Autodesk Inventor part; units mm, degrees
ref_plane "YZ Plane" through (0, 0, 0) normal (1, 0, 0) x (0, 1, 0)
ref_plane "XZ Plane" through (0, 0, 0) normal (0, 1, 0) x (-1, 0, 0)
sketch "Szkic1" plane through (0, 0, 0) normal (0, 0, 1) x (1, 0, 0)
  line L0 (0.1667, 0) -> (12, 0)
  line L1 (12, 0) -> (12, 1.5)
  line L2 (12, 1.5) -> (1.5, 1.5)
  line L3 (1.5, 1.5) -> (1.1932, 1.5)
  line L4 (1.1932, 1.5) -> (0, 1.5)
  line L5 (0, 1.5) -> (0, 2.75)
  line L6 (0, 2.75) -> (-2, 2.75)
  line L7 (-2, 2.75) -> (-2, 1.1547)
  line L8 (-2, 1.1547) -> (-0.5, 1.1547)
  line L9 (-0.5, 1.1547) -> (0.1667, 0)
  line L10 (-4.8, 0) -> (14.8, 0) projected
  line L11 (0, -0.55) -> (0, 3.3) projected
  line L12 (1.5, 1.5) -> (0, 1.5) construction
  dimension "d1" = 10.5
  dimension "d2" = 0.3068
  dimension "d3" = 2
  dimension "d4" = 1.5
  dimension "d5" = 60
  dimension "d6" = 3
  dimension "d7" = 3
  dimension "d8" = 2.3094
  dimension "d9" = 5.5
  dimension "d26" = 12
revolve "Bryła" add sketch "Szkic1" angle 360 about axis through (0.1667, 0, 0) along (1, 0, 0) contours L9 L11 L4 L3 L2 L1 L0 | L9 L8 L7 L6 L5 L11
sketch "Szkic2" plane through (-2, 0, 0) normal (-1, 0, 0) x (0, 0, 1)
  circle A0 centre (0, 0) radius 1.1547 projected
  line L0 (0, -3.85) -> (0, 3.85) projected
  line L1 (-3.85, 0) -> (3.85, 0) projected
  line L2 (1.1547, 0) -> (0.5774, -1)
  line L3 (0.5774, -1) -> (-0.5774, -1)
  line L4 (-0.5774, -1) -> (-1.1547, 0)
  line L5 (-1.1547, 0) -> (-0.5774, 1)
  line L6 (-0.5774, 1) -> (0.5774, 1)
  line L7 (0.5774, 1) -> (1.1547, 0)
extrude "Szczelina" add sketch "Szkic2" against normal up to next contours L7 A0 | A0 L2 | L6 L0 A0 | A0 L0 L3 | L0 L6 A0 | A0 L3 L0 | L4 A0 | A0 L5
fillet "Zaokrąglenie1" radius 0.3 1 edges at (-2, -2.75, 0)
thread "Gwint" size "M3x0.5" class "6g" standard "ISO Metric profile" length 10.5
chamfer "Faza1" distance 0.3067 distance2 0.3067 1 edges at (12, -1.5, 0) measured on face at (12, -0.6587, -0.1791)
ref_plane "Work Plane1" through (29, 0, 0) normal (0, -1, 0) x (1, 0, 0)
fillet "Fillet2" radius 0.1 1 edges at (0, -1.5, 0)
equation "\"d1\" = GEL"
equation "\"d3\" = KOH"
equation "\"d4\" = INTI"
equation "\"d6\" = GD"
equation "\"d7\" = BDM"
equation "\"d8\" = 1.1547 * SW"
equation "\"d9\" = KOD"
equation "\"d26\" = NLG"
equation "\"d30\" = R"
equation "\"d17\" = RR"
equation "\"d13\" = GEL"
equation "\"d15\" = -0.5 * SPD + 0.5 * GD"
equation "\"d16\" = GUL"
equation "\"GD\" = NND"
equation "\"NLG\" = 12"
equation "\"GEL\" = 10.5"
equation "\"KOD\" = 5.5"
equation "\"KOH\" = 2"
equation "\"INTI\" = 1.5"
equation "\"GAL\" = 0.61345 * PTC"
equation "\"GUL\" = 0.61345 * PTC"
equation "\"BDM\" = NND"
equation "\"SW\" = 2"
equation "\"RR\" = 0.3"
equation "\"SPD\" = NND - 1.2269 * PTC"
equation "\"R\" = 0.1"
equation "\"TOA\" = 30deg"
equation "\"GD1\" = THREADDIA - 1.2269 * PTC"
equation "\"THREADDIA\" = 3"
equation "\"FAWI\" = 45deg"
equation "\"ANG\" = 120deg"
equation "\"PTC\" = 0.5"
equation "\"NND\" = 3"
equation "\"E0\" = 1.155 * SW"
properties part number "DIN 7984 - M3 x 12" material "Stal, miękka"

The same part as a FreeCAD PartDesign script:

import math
import FreeCAD as App
import Part
import Sketcher

V = App.Vector


def edges_at(feature, points):
    """Names of the edges that pass closest to the given points."""
    edges = feature.Shape.Edges
    near = lambda p: min(range(len(edges)), key=lambda i: edges[i].distToShape(Part.Vertex(*p))[0])
    return sorted({f"Edge{near(p) + 1}" for p in points})


def add_polygon(sketch, points):
    """Adds a closed chain of lines whose ends are joined by coincident constraints."""
    first, n = sketch.GeometryCount, len(points)
    for a, b in zip(points, points[1:] + points[:1]):
        sketch.addGeometry(Part.LineSegment(App.Vector(*a, 0), App.Vector(*b, 0)), False)
    for i in range(n):
        sketch.addConstraint(Sketcher.Constraint("Coincident", first + i, 2, first + (i + 1) % n, 1))

doc = App.newDocument("Part")
body = doc.addObject("PartDesign::Body", "Body")

sketch1 = body.newObject("Sketcher::SketchObject", "Sketch")
sketch1.AttachmentSupport = (doc.getObject("XY_Plane"), [""])
sketch1.MapMode = "FlatFace"
add_polygon(sketch1, [(0.2, 0), (12, 0), (12, 1.5), (0, 1.5), (0, 2.8), (-2, 2.8), (-2, 1.2), (-0.5, 1.2)])
sketch1.addConstraint(Sketcher.Constraint("Horizontal", 0))
sketch1.addConstraint(Sketcher.Constraint("Vertical", 1))
sketch1.addConstraint(Sketcher.Constraint("Horizontal", 2))
sketch1.addConstraint(Sketcher.Constraint("Vertical", 3))
sketch1.addConstraint(Sketcher.Constraint("Horizontal", 4))
sketch1.addConstraint(Sketcher.Constraint("Vertical", 5))
sketch1.addConstraint(Sketcher.Constraint("Horizontal", 6))
sketch1.addConstraint(Sketcher.Constraint("PointOnObject", 0, 2, -1))
sketch1.addConstraint(Sketcher.Constraint("PointOnObject", 2, 2, -2))
sketch1.addConstraint(Sketcher.Constraint("Equal", 6, 1))
sketch1.addConstraint(Sketcher.Constraint("DistanceX", 2, 2, 2, 1, 12.0))
sketch1.addConstraint(Sketcher.Constraint("DistanceX", 4, 2, 4, 1, 2.0))
sketch1.addConstraint(Sketcher.Constraint("DistanceX", 6, 1, 6, 2, 1.5))
sketch1.addConstraint(Sketcher.Constraint("DistanceY", 3, 1, 3, 2, 1.25))
sketch1.addConstraint(Sketcher.Constraint("DistanceX", 0, 1, 0, 2, 11.8333))
sketch1.addConstraint(Sketcher.Constraint("DistanceY", 5, 2, 5, 1, 1.5953))
revolution = body.newObject("PartDesign::Revolution", "Revolution")
revolution.Profile = sketch1
revolution.ReferenceAxis = (sketch1, ["H_Axis"])
revolution.Angle = 360

sketch2 = body.newObject("Sketcher::SketchObject", "Sketch001")
sketch2.AttachmentSupport = (doc.getObject("YZ_Plane"), [""])
sketch2.MapMode = "FlatFace"
sketch2.AttachmentOffset = App.Placement(V(0, 0, -2), App.Rotation())
sketch2.addGeometry(Part.LineSegment(V(1, 0.6, 0), V(0, 1.2, 0)), False)
sketch2.addGeometry(Part.ArcOfCircle(Part.Circle(V(0, 0, 0), V(0, 0, 1), 1.2), math.radians(30), math.radians(90)), False)
sketch2.addGeometry(Part.ArcOfCircle(Part.Circle(V(0, 0, 0), V(0, 0, 1), 1.2), math.radians(90), math.radians(150)), False)
sketch2.addGeometry(Part.LineSegment(V(0, 1.2, 0), V(-1, 0.6, 0)), False)
sketch2.addGeometry(Part.ArcOfCircle(Part.Circle(V(0, 0, 0), V(0, 0, 1), 1.2), math.radians(-30), math.radians(30)), False)
sketch2.addGeometry(Part.LineSegment(V(1, 0.6, 0), V(1, -0.6, 0)), False)
sketch2.addGeometry(Part.LineSegment(V(-1, 0.6, 0), V(-1, -0.6, 0)), False)
sketch2.addGeometry(Part.ArcOfCircle(Part.Circle(V(0, 0, 0), V(0, 0, 1), 1.2), math.radians(150), math.radians(210)), False)
sketch2.addGeometry(Part.LineSegment(V(-1, -0.6, 0), V(0, -1.2, 0)), False)
sketch2.addGeometry(Part.ArcOfCircle(Part.Circle(V(0, 0, 0), V(0, 0, 1), 1.2), math.radians(-150), math.radians(-90)), False)
sketch2.addGeometry(Part.ArcOfCircle(Part.Circle(V(0, 0, 0), V(0, 0, 1), 1.2), math.radians(-90), math.radians(-30)), False)
sketch2.addGeometry(Part.LineSegment(V(0, -1.2, 0), V(1, -0.6, 0)), False)
sketch2.addConstraint(Sketcher.Constraint("Coincident", 0, 1, 1, 1))
sketch2.addConstraint(Sketcher.Constraint("Coincident", 1, 2, 0, 2))
sketch2.addConstraint(Sketcher.Constraint("Coincident", 2, 1, 3, 1))
sketch2.addConstraint(Sketcher.Constraint("Coincident", 3, 2, 2, 2))
sketch2.addConstraint(Sketcher.Constraint("Coincident", 4, 1, 5, 2))
sketch2.addConstraint(Sketcher.Constraint("Coincident", 5, 1, 4, 2))
sketch2.addConstraint(Sketcher.Constraint("Coincident", 6, 1, 7, 1))
sketch2.addConstraint(Sketcher.Constraint("Coincident", 7, 2, 6, 2))
sketch2.addConstraint(Sketcher.Constraint("Coincident", 8, 1, 9, 1))
sketch2.addConstraint(Sketcher.Constraint("Coincident", 9, 2, 8, 2))
sketch2.addConstraint(Sketcher.Constraint("Coincident", 10, 1, 11, 1))
sketch2.addConstraint(Sketcher.Constraint("Coincident", 11, 2, 10, 2))
sketch2.addConstraint(Sketcher.Constraint("Vertical", 5))
sketch2.addConstraint(Sketcher.Constraint("Vertical", 6))
sketch2.addConstraint(Sketcher.Constraint("Coincident", 1, 3, -1, 1))
sketch2.addConstraint(Sketcher.Constraint("Coincident", 2, 3, -1, 1))
sketch2.addConstraint(Sketcher.Constraint("Coincident", 4, 3, -1, 1))
sketch2.addConstraint(Sketcher.Constraint("Coincident", 7, 3, -1, 1))
sketch2.addConstraint(Sketcher.Constraint("Coincident", 9, 3, -1, 1))
sketch2.addConstraint(Sketcher.Constraint("Coincident", 10, 3, -1, 1))
sketch2.addConstraint(Sketcher.Constraint("Coincident", 2, 1, 1, 2))
sketch2.addConstraint(Sketcher.Constraint("Coincident", 5, 1, 0, 1))
sketch2.addConstraint(Sketcher.Constraint("Coincident", 6, 1, 3, 2))
sketch2.addConstraint(Sketcher.Constraint("Coincident", 8, 1, 7, 2))
sketch2.addConstraint(Sketcher.Constraint("Coincident", 10, 1, 9, 2))
sketch2.addConstraint(Sketcher.Constraint("PointOnObject", 1, 2, -2))
sketch2.addConstraint(Sketcher.Constraint("PointOnObject", 9, 2, -2))
sketch2.addConstraint(Sketcher.Constraint("Parallel", 0, 8))
sketch2.addConstraint(Sketcher.Constraint("Parallel", 3, 11))
sketch2.addConstraint(Sketcher.Constraint("DistanceX", -1, 1, 0, 1, 1.0))
sketch2.addConstraint(Sketcher.Constraint("Radius", 1, 1.1547))
pad1 = body.newObject("PartDesign::Pad", "Pad")
pad1.Profile = sketch2
pad1.Type = "UpToFirst"
doc.recompute()

fillet = body.newObject("PartDesign::Fillet", "Fillet")
fillet.Base = (pad1, edges_at(pad1, [(-2, -2.75, 0)]))
fillet.Radius = 0.3
doc.recompute()

chamfer = body.newObject("PartDesign::Chamfer", "Chamfer")
chamfer.Base = (fillet, edges_at(fillet, [(12, -1.5, 0)]))
chamfer.ChamferType = "Two distances"
chamfer.Size = 0.3067
chamfer.Size2 = 0.3067
doc.recompute()

fillet2 = body.newObject("PartDesign::Fillet", "Fillet001")
fillet2.Base = (chamfer, edges_at(chamfer, [(0, -1.5, 0)]))
fillet2.Radius = 0.1

doc.recompute()
